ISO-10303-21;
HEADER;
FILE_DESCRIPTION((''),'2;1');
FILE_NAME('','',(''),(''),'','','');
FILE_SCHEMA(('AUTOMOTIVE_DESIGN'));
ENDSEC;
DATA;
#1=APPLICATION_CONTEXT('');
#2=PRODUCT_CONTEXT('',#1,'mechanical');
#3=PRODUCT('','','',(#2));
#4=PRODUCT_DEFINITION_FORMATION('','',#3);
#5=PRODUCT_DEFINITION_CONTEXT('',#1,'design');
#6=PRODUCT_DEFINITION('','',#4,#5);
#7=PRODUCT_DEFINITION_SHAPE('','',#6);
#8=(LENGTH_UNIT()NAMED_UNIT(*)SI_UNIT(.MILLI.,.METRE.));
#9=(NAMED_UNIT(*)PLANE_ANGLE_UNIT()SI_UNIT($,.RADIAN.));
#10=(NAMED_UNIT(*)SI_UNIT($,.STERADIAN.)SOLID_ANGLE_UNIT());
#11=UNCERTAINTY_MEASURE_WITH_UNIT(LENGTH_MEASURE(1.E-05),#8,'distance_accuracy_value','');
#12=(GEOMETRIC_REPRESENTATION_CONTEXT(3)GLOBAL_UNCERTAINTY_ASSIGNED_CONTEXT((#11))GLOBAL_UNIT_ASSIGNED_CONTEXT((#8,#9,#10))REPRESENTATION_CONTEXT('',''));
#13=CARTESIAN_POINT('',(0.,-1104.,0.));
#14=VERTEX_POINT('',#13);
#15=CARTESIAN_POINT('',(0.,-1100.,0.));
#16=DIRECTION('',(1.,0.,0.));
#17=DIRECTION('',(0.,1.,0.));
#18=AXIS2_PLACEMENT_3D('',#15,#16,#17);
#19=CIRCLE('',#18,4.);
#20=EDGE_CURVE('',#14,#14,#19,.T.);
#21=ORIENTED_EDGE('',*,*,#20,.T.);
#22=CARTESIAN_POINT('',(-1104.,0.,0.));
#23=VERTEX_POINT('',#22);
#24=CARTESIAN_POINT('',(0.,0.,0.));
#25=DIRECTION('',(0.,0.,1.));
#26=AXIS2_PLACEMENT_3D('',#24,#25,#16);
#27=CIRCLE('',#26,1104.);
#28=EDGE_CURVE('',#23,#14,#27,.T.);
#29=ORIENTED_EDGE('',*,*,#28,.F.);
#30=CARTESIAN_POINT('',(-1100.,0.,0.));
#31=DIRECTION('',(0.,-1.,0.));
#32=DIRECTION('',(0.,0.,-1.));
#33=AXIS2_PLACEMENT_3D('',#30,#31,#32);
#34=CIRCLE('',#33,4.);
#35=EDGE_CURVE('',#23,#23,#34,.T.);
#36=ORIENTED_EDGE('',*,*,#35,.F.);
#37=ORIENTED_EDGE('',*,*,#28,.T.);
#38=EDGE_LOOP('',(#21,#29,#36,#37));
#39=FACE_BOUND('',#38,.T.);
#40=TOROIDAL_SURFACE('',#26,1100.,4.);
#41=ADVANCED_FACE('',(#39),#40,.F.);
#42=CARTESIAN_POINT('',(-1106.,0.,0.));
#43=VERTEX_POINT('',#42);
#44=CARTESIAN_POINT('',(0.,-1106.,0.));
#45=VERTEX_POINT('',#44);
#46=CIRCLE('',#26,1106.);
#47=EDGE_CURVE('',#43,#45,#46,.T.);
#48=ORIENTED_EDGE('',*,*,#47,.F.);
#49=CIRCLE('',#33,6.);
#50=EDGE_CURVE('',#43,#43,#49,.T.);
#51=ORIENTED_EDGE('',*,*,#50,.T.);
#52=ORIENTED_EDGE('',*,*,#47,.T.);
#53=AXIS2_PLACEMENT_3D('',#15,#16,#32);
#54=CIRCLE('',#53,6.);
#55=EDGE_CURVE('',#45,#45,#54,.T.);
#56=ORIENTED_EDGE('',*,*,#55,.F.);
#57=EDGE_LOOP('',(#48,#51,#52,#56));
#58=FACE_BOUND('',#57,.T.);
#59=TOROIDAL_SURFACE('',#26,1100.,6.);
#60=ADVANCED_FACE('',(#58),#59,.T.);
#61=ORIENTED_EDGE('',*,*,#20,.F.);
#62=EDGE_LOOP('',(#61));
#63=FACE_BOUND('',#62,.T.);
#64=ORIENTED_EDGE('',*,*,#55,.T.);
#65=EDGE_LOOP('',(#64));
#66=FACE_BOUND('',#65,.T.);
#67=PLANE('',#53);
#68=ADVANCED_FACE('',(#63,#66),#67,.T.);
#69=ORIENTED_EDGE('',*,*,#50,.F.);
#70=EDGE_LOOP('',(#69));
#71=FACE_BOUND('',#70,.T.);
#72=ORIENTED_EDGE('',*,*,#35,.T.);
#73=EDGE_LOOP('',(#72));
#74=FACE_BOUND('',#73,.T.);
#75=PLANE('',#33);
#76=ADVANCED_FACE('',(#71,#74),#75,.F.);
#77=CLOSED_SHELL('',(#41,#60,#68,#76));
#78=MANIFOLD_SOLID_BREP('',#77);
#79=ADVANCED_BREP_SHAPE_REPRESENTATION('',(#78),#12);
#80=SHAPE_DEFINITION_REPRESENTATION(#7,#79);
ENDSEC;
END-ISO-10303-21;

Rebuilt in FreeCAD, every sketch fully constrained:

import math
import FreeCAD as App
import Part
import Sketcher

V = App.Vector

doc = App.newDocument("Part")
params = doc.addObject("Spreadsheet::Sheet", "Params")
for row, (alias, value) in enumerate([
    ("sketch1_diameter", "12 mm"),
    ("sketch1_diameter2", "8 mm"),
    ("sketch2_radius", "1100 mm"),
], start=1):
    params.set(f"A{row}", alias)
    params.set(f"B{row}", "=" + value)
    params.setAlias(f"B{row}", alias)

body = doc.addObject("PartDesign::Body", "Body")

# Sketch on XZ plane
sketch1 = doc.addObject("Sketcher::SketchObject", "Sketch")
body.addObject(sketch1)
sketch1.AttachmentSupport = (doc.XZ_Plane, [""])
sketch1.MapMode = "FlatFace"
sketch1.addGeometry([
    Part.Circle(V(-1100, 0, 0), V(0, 0, 1), 6),
    Part.Circle(V(-1100, 0, 0), V(0, 0, 1), 4),
], False)
sketch1.addConstraint([
    Sketcher.Constraint("Coincident", 1, 3, 0, 3),
    Sketcher.Constraint("PointOnObject", 0, 3, -1),
    Sketcher.Constraint("Diameter", 0, 12.0),
    Sketcher.Constraint("Diameter", 1, 8.0),
    Sketcher.Constraint("DistanceX", 0, 3, -1, 1, 1100.0),
])
sketch1.setExpression("Constraints[2]", "Params.sketch1_diameter")
sketch1.setExpression("Constraints[3]", "Params.sketch1_diameter2")

# Sketch on XY plane
sketch2 = doc.addObject("Sketcher::SketchObject", "Sketch001")
body.addObject(sketch2)
sketch2.AttachmentSupport = (doc.XY_Plane, [""])
sketch2.MapMode = "FlatFace"
sketch2.addGeometry(Part.ArcOfCircle(Part.Circle(V(0, 0, 0), V(0, 0, 1), 1100), math.radians(-180), math.radians(-90)), False)
sketch2.addConstraint([
    Sketcher.Constraint("Coincident", 0, 3, -1, 1),
    Sketcher.Constraint("PointOnObject", 0, 1, -1),
    Sketcher.Constraint("PointOnObject", 0, 2, -2),
    Sketcher.Constraint("Radius", 0, 1100.0),
])
sketch2.setExpression("Constraints[3]", "Params.sketch2_radius")
doc.recompute()

additivepipe = doc.addObject("PartDesign::AdditivePipe", "AdditivePipe")
body.addObject(additivepipe)
additivepipe.Profile = sketch1
additivepipe.Spine = (sketch2, ["Edge1"])

doc.recompute()
